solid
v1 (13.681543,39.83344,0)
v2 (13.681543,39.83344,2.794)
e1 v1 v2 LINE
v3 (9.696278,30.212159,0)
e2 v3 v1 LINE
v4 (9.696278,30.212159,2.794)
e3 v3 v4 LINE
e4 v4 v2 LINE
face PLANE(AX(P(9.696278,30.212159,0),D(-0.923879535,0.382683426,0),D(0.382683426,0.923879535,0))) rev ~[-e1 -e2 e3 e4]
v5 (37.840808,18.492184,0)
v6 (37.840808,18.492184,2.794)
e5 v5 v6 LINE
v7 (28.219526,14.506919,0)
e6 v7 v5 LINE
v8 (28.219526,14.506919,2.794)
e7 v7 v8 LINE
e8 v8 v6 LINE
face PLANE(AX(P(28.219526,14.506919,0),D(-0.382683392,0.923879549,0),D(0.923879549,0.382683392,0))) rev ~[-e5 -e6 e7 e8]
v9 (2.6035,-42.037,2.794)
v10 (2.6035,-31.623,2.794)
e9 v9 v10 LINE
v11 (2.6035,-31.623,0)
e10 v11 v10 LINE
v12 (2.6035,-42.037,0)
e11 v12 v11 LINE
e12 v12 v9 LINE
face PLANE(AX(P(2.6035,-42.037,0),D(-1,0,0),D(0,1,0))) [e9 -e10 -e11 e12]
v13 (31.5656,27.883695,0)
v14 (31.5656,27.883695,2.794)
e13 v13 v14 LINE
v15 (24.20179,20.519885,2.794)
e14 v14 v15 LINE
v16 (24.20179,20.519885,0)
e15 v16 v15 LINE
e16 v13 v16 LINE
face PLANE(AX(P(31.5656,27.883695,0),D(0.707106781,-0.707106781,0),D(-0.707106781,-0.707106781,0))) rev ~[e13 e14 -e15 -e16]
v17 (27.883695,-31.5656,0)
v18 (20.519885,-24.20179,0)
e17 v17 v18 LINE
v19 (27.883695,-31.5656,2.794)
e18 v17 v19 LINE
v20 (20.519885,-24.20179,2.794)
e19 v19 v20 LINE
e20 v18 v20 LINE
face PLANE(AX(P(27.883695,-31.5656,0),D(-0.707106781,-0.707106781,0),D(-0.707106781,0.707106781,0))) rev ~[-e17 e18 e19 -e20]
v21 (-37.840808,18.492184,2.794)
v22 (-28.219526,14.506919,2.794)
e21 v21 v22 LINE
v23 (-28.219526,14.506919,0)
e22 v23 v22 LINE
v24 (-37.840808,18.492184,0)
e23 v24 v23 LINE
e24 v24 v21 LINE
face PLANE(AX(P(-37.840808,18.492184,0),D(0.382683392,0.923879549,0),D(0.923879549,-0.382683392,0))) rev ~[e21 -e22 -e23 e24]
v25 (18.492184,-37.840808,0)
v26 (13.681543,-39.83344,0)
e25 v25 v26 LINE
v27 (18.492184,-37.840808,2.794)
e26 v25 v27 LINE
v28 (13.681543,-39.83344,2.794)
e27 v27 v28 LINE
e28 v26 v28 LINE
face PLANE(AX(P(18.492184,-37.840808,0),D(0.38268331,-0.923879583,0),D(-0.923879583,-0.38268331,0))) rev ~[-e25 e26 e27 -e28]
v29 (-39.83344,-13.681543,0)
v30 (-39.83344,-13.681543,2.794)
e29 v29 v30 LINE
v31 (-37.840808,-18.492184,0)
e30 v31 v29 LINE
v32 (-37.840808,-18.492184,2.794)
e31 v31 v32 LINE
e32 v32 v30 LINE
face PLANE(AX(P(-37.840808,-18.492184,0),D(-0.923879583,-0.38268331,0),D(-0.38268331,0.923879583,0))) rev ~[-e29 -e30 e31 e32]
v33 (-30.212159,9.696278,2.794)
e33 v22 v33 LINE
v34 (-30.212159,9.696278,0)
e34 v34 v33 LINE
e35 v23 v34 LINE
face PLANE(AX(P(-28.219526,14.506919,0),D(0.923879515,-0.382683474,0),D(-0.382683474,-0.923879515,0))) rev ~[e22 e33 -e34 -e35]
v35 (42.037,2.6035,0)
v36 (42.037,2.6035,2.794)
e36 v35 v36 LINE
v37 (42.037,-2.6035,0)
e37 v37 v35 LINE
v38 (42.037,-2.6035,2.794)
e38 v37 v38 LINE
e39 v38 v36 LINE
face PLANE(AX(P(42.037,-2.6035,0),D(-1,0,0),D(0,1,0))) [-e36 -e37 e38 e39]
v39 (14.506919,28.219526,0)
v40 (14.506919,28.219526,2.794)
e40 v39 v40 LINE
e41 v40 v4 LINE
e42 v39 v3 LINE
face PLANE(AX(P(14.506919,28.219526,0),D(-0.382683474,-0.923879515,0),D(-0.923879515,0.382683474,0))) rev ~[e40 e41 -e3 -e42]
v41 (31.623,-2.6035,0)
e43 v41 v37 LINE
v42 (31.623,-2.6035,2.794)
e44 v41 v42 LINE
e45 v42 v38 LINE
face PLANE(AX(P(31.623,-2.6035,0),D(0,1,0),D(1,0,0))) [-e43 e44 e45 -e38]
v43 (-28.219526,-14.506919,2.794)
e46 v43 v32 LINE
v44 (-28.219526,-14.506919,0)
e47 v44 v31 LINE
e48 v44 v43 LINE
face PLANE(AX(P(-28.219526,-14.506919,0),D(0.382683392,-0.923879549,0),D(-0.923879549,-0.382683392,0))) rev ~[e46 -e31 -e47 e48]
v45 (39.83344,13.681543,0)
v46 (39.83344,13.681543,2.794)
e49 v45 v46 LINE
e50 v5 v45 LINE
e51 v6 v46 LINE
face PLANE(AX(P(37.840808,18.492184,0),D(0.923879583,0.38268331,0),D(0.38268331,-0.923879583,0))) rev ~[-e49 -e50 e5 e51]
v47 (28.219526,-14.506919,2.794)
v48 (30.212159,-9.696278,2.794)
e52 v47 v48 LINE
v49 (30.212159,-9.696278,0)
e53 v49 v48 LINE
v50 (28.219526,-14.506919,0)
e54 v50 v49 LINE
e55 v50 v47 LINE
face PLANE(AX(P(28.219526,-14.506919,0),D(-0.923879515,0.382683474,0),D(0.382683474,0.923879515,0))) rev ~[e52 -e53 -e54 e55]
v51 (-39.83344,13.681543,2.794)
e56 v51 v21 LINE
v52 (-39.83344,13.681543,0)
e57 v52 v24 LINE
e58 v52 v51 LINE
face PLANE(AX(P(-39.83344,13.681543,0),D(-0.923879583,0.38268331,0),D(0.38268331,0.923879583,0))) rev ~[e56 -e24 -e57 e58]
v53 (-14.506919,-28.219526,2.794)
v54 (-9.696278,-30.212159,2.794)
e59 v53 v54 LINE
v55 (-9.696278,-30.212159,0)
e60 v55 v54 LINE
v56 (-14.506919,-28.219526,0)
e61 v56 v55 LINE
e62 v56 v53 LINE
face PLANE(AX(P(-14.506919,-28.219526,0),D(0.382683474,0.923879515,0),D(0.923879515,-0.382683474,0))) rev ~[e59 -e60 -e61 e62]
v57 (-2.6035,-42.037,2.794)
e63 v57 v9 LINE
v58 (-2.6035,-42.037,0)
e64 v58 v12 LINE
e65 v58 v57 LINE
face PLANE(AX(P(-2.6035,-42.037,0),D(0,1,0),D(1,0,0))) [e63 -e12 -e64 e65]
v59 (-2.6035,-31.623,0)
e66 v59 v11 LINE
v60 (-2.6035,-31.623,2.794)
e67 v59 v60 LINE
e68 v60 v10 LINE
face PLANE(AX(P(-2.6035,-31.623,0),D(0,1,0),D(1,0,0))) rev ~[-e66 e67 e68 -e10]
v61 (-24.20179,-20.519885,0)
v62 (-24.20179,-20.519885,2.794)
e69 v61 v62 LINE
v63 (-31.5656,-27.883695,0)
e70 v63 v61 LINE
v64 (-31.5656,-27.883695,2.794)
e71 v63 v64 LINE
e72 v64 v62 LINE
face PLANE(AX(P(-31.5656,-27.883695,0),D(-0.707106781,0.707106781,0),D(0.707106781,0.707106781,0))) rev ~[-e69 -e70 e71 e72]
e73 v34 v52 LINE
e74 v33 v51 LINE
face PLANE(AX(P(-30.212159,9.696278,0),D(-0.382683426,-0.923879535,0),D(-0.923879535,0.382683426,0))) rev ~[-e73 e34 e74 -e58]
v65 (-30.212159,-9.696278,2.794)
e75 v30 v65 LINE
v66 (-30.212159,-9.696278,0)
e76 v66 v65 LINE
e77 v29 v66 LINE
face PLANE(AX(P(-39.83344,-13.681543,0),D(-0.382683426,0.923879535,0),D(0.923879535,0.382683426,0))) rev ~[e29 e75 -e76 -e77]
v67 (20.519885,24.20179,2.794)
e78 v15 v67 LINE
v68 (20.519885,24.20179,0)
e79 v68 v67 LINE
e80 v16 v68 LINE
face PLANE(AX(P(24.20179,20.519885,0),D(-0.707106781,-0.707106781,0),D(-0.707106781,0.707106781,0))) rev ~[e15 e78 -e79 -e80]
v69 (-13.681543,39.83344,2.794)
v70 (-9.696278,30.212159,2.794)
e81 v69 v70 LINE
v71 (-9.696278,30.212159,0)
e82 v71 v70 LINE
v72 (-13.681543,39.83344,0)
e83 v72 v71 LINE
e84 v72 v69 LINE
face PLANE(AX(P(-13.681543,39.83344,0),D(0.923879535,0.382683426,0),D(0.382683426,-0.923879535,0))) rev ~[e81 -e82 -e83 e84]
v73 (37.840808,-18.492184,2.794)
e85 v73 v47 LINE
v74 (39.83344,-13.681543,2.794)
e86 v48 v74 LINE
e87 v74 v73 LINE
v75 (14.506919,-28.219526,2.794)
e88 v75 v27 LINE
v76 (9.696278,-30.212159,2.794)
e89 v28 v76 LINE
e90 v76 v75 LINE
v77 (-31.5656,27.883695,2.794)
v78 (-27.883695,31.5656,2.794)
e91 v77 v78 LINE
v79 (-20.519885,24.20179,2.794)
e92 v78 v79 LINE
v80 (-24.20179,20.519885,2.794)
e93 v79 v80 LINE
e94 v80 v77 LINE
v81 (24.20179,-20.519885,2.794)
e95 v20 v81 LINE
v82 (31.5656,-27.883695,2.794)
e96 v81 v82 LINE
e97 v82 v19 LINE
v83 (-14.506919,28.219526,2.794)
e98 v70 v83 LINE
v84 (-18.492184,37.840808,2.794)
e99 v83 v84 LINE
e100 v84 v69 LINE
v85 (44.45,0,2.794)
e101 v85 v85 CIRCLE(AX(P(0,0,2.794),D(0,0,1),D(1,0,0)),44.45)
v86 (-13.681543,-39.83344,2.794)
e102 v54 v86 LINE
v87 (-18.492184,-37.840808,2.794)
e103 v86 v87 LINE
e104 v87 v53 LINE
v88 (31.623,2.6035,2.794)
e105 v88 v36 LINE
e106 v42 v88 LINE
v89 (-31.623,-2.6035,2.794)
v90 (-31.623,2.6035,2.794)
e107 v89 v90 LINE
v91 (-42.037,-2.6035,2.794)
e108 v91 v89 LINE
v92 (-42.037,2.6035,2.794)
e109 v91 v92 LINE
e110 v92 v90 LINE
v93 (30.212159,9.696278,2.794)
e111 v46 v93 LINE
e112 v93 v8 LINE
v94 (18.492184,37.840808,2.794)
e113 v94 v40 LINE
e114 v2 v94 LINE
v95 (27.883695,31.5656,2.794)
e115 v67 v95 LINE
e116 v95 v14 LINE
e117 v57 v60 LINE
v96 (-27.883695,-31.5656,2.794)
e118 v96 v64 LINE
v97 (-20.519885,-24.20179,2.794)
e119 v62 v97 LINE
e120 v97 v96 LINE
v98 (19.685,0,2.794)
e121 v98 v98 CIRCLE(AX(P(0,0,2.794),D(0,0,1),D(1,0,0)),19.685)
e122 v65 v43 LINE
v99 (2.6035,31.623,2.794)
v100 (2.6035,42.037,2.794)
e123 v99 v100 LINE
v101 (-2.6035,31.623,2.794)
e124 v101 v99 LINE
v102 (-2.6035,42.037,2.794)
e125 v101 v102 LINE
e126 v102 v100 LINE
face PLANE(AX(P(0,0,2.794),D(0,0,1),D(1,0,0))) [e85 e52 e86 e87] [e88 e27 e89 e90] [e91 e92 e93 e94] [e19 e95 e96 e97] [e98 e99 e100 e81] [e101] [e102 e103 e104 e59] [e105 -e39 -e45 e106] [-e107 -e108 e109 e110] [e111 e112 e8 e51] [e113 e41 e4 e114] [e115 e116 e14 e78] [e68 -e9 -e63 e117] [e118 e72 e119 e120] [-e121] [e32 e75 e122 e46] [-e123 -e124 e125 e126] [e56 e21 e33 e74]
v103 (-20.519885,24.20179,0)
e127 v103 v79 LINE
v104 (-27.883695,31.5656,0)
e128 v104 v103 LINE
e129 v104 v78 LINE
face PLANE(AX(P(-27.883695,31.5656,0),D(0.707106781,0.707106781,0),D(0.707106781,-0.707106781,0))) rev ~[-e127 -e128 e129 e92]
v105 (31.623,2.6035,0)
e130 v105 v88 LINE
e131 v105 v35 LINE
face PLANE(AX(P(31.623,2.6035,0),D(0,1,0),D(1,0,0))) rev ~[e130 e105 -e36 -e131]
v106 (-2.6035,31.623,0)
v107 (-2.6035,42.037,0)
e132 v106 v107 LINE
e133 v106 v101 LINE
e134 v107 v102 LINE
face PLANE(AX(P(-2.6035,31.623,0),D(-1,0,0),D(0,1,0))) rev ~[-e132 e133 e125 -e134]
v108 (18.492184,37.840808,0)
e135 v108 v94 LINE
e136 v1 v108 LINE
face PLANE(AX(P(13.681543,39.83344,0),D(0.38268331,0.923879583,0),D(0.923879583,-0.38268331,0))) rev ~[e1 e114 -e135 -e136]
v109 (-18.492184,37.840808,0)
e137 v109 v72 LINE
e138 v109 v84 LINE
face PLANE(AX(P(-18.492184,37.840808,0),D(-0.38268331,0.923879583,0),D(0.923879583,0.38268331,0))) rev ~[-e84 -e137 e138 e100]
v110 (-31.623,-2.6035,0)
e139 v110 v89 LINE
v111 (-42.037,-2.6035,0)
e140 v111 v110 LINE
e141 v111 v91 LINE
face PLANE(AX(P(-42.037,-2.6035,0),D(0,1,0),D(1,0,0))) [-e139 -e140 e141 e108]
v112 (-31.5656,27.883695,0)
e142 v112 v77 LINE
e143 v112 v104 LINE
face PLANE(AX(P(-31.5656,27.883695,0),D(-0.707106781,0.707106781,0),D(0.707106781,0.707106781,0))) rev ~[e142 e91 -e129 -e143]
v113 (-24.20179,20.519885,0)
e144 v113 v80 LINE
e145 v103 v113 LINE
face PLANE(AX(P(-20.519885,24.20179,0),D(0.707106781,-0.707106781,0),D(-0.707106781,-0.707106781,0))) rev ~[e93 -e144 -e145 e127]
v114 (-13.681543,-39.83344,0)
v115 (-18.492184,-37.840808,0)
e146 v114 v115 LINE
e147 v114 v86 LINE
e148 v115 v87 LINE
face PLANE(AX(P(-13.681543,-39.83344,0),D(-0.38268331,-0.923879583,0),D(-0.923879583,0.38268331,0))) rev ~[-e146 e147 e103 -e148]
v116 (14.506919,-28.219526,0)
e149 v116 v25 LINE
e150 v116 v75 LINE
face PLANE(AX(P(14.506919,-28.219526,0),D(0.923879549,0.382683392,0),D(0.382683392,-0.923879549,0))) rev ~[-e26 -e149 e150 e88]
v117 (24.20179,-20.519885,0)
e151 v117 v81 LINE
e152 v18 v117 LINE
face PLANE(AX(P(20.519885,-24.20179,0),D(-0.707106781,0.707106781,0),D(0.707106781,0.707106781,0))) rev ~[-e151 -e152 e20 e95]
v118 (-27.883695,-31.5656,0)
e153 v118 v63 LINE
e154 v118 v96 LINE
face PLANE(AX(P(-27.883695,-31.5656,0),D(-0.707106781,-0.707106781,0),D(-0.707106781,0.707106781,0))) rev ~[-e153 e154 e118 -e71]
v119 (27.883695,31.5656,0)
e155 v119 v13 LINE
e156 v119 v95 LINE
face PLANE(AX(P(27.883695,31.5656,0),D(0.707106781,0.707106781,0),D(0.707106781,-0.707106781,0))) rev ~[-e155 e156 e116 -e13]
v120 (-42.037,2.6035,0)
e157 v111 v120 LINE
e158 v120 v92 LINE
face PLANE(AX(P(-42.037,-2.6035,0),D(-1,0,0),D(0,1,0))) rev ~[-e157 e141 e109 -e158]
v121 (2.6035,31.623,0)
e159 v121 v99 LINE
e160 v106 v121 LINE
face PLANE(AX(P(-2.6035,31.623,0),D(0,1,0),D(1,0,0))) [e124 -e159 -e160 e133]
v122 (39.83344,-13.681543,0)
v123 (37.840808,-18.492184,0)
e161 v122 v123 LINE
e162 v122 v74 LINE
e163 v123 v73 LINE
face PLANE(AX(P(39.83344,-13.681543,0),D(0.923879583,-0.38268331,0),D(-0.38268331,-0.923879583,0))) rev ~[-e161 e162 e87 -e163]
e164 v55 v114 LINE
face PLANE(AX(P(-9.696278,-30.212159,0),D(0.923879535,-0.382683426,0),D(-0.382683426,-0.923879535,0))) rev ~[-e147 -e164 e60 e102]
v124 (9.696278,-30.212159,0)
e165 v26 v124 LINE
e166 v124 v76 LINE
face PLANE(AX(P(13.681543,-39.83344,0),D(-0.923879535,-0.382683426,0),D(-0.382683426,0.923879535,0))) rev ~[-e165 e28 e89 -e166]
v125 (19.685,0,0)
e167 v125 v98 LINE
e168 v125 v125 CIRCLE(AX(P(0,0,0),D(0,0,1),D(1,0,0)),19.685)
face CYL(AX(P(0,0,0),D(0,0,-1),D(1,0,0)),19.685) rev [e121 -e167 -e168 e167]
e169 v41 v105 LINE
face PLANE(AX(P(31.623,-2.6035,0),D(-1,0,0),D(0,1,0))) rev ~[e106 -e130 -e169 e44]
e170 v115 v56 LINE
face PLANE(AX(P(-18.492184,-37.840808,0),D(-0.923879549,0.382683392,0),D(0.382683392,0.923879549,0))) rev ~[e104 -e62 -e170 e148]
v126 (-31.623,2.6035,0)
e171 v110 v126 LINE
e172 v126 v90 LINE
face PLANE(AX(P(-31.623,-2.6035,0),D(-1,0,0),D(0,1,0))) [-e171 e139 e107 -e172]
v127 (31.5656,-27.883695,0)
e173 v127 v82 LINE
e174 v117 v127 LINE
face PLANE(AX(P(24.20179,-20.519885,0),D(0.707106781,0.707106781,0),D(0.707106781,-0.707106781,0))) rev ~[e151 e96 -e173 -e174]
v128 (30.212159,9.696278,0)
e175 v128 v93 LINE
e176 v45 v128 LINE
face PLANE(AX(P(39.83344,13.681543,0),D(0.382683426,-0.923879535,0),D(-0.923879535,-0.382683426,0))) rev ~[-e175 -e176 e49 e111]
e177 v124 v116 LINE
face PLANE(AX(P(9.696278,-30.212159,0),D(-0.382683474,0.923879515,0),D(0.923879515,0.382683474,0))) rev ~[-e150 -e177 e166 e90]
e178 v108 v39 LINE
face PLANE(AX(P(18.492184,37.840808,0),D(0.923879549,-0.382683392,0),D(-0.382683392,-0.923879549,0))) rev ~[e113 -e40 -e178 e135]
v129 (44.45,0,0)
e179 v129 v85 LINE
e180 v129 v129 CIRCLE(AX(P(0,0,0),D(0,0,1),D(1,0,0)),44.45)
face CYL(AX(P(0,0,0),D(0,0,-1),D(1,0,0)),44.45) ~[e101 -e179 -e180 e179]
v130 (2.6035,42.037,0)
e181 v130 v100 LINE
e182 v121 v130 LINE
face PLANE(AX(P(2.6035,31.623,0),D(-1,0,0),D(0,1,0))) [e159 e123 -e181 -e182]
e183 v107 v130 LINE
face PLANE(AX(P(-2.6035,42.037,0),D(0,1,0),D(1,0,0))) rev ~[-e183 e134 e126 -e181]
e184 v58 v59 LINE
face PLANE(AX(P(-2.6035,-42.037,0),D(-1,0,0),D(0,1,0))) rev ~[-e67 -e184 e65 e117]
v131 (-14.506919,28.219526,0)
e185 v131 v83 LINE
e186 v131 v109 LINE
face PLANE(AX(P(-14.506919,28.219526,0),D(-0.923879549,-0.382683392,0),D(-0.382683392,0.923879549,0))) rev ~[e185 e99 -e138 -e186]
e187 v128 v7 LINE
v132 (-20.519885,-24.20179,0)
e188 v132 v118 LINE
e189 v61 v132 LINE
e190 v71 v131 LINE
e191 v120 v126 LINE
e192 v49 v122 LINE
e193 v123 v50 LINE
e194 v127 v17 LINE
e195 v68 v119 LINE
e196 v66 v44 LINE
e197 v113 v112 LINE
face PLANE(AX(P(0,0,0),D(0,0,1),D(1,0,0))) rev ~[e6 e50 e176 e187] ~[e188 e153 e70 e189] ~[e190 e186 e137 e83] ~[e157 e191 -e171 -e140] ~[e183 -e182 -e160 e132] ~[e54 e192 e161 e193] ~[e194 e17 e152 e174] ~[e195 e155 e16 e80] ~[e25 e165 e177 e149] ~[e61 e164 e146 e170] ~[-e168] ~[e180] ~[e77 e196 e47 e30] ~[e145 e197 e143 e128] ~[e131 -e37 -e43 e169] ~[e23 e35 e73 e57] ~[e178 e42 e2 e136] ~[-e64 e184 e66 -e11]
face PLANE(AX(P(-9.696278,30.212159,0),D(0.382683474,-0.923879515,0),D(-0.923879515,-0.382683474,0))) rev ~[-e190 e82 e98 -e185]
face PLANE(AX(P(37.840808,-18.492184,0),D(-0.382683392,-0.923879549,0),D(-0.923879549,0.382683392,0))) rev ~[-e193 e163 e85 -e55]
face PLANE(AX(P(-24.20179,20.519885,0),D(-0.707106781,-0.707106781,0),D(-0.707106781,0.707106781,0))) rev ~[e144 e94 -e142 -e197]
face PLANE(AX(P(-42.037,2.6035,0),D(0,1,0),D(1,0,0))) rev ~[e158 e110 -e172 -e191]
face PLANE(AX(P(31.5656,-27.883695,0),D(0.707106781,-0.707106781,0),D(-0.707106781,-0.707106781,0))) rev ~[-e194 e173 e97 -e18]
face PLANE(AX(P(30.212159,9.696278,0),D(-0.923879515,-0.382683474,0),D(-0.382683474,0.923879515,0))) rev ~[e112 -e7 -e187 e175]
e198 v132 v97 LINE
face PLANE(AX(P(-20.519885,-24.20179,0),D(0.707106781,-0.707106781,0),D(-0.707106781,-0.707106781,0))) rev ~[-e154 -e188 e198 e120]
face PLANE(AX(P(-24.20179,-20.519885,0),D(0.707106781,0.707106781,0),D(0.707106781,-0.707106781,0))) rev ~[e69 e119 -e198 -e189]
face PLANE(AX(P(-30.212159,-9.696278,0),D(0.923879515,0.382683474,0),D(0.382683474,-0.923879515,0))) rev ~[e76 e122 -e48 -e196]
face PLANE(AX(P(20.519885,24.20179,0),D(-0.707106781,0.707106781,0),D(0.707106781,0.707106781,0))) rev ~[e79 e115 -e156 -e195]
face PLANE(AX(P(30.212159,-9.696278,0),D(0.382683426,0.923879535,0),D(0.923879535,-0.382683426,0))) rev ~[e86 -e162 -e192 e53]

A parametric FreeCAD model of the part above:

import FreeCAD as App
import Part
import Sketcher
from FreeCAD import Vector
Q = App.Units.Quantity


def add_polygon(sketch, points):
    """Adds a closed chain of lines whose ends are joined by coincident constraints."""
    first, n = sketch.GeometryCount, len(points)
    for a, b in zip(points, points[1:] + points[:1]):
        sketch.addGeometry(Part.LineSegment(App.Vector(*a, 0), App.Vector(*b, 0)), False)
    for i in range(n):
        sketch.addConstraint(Sketcher.Constraint("Coincident", first + i, 2, first + (i + 1) % n, 1))

doc = App.newDocument("Part")
body = doc.addObject("PartDesign::Body", "Body")

sketch1 = body.newObject("Sketcher::SketchObject", "Sketch")
sketch1.AttachmentSupport = (doc.getObject("XY_Plane"), [""])
sketch1.MapMode = "FlatFace"
sketch1.addGeometry(Part.Circle(Vector(0, 0, 0), Vector(0, 0, 1), 44.45), False)
add_polygon(sketch1, [(-31.5656, -27.883695), (-24.20179, -20.519885), (-20.519885, -24.20179), (-27.883695, -31.5656)])
add_polygon(sketch1, [(-18.492184, -37.840808), (-14.506919, -28.219526), (-9.696278, -30.212159), (-13.681543, -39.83344)])
add_polygon(sketch1, [(-39.83344, -13.681543), (-30.212159, -9.696278), (-28.219526, -14.506919), (-37.840808, -18.492184)])
add_polygon(sketch1, [(2.6035, -42.037), (-2.6035, -42.037), (-2.6035, -31.623), (2.6035, -31.623)])
add_polygon(sketch1, [(13.681543, -39.83344), (9.696278, -30.212159), (14.506919, -28.219526), (18.492184, -37.840808)])
add_polygon(sketch1, [(27.883695, -31.5656), (20.519885, -24.20179), (24.20179, -20.519885), (31.5656, -27.883695)])
sketch1.addGeometry(Part.Circle(Vector(0, 0, 0), Vector(0, 0, 1), 19.685), False)
add_polygon(sketch1, [(37.840808, -18.492184), (28.219526, -14.506919), (30.212159, -9.696278), (39.83344, -13.681543)])
add_polygon(sketch1, [(-31.623, -2.6035), (-42.037, -2.6035), (-42.037, 2.6035), (-31.623, 2.6035)])
add_polygon(sketch1, [(-37.840808, 18.492184), (-28.219526, 14.506919), (-30.212159, 9.696278), (-39.83344, 13.681543)])
add_polygon(sketch1, [(-27.883695, 31.5656), (-20.519885, 24.20179), (-24.20179, 20.519885), (-31.5656, 27.883695)])
add_polygon(sketch1, [(-13.681543, 39.83344), (-9.696278, 30.212159), (-14.506919, 28.219526), (-18.492184, 37.840808)])
add_polygon(sketch1, [(42.037, -2.6035), (31.623, -2.6035), (31.623, 2.6035), (42.037, 2.6035)])
add_polygon(sketch1, [(39.83344, 13.681543), (30.212159, 9.696278), (28.219526, 14.506919), (37.840808, 18.492184)])
add_polygon(sketch1, [(2.6035, 31.623), (-2.6035, 31.623), (-2.6035, 42.037), (2.6035, 42.037)])
add_polygon(sketch1, [(18.492184, 37.840808), (14.506919, 28.219526), (9.696278, 30.212159), (13.681543, 39.83344)])
add_polygon(sketch1, [(31.5656, 27.883695), (24.20179, 20.519885), (20.519885, 24.20179), (27.883695, 31.5656)])
sketch1.addConstraint([
    Sketcher.Constraint("Horizontal", 13),
    Sketcher.Constraint("Vertical", 14),
    Sketcher.Constraint("Horizontal", 15),
    Sketcher.Constraint("Vertical", 16),
    Sketcher.Constraint("Horizontal", 30),
    Sketcher.Constraint("Vertical", 31),
    Sketcher.Constraint("Horizontal", 32),
    Sketcher.Constraint("Vertical", 33),
    Sketcher.Constraint("Horizontal", 46),
    Sketcher.Constraint("Vertical", 47),
    Sketcher.Constraint("Horizontal", 48),
    Sketcher.Constraint("Vertical", 49),
    Sketcher.Constraint("Horizontal", 54),
    Sketcher.Constraint("Vertical", 55),
    Sketcher.Constraint("Horizontal", 56),
    Sketcher.Constraint("Vertical", 57),
    Sketcher.Constraint("Coincident", 0, 3, -1, 1),
    Sketcher.Constraint("Coincident", 25, 3, -1, 1),
    Sketcher.Constraint("Symmetric", 26, 2, 34, 2, -1, 1),
    Sketcher.Constraint("Symmetric", 27, 2, 35, 2, -1, 1),
    Sketcher.Constraint("Symmetric", 28, 2, 36, 2, -1, 1),
    Sketcher.Constraint("Symmetric", 29, 2, 37, 2, -1, 1),
    Sketcher.Constraint("Symmetric", 21, 2, 38, 2, -1, 1),
    Sketcher.Constraint("Symmetric", 22, 2, 39, 2, -1, 1),
    Sketcher.Constraint("Symmetric", 23, 2, 40, 2, -1, 1),
    Sketcher.Constraint("Symmetric", 24, 2, 41, 2, -1, 1),
    Sketcher.Constraint("Symmetric", 17, 2, 42, 2, -1, 1),
    Sketcher.Constraint("Symmetric", 18, 2, 43, 2, -1, 1),
    Sketcher.Constraint("Symmetric", 19, 2, 44, 2, -1, 1),
    Sketcher.Constraint("Symmetric", 20, 2, 45, 2, -1, 1),
    Sketcher.Constraint("Symmetric", 32, 2, 46, 2, -1, 1),
    Sketcher.Constraint("Symmetric", 30, 2, 48, 2, -1, 1),
    Sketcher.Constraint("Symmetric", 9, 2, 50, 2, -1, 1),
    Sketcher.Constraint("Symmetric", 10, 2, 51, 2, -1, 1),
    Sketcher.Constraint("Symmetric", 11, 2, 52, 2, -1, 1),
    Sketcher.Constraint("Symmetric", 12, 2, 53, 2, -1, 1),
    Sketcher.Constraint("Symmetric", 15, 2, 54, 2, -1, 1),
    Sketcher.Constraint("Symmetric", 13, 2, 56, 2, -1, 1),
    Sketcher.Constraint("Symmetric", 5, 2, 58, 2, -1, 1),
    Sketcher.Constraint("Symmetric", 6, 2, 59, 2, -1, 1),
    Sketcher.Constraint("Symmetric", 7, 2, 60, 2, -1, 1),
    Sketcher.Constraint("Symmetric", 8, 2, 61, 2, -1, 1),
    Sketcher.Constraint("Symmetric", 1, 2, 62, 2, -1, 1),
    Sketcher.Constraint("Symmetric", 2, 2, 63, 2, -1, 1),
    Sketcher.Constraint("Symmetric", 3, 2, 64, 2, -1, 1),
    Sketcher.Constraint("Symmetric", 4, 2, 65, 2, -1, 1),
    Sketcher.Constraint("Symmetric", 6, 2, 17, 2, -2),
    Sketcher.Constraint("Symmetric", 5, 2, 18, 2, -2),
    Sketcher.Constraint("Symmetric", 8, 2, 19, 2, -2),
    Sketcher.Constraint("Symmetric", 7, 2, 20, 2, -2),
    Sketcher.Constraint("Symmetric", 2, 2, 21, 2, -2),
    Sketcher.Constraint("Symmetric", 1, 2, 22, 2, -2),
    Sketcher.Constraint("Symmetric", 4, 2, 23, 2, -2),
    Sketcher.Constraint("Symmetric", 3, 2, 24, 2, -2),
    Sketcher.Constraint("Symmetric", 10, 2, 26, 2, -2),
    Sketcher.Constraint("Symmetric", 9, 2, 27, 2, -2),
    Sketcher.Constraint("Symmetric", 12, 2, 28, 2, -2),
    Sketcher.Constraint("Symmetric", 11, 2, 29, 2, -2),
    Sketcher.Constraint("Perpendicular", 1, 2),
    Sketcher.Constraint("Perpendicular", 2, 3),
    Sketcher.Constraint("Perpendicular", 3, 4),
    Sketcher.Constraint("Perpendicular", 5, 6),
    Sketcher.Constraint("Perpendicular", 6, 7),
    Sketcher.Constraint("Perpendicular", 7, 8),
    Sketcher.Constraint("Perpendicular", 9, 10),
    Sketcher.Constraint("Perpendicular", 10, 11),
    Sketcher.Constraint("Perpendicular", 11, 12),
    Sketcher.Constraint("Parallel", 12, 17),
    Sketcher.Constraint("Parallel", 4, 21),
    Sketcher.Constraint("Horizontal", 33, 2, 46, 2),
    Sketcher.Constraint("Vertical", 14, 2, 54, 2),
    Sketcher.Constraint("Equal", 48, 14),
    Sketcher.Constraint("Equal", 56, 31),
    Sketcher.Constraint("Equal", 3, 5),
    Sketcher.Constraint("Equal", 4, 6),
    Sketcher.Constraint("Equal", 7, 9),
    Sketcher.Constraint("Equal", 8, 10),
    Sketcher.Constraint("Diameter", 0, Q("3.5 in")),
    Sketcher.Constraint("Diameter", 25, Q("1.55 in")),
    Sketcher.Constraint("DistanceX", 30, 2, 30, 1, Q("0.41 in")),
    Sketcher.Constraint("Angle", 5, Q("67.500002 deg")),
    Sketcher.Constraint("Distance", 1, Q("0.41 in")),
    Sketcher.Constraint("DistanceX", 13, 2, 13, 1, Q("0.205 in")),
    Sketcher.Constraint("Distance", 2, Q("0.205 in")),
    Sketcher.Constraint("DistanceY", 13, 2, -1, 1, Q("1.655 in")),
    Sketcher.Constraint("DistanceX", 30, 2, -1, 1, Q("1.655 in")),
    Sketcher.Constraint("DistanceY", 3, 2, -1, 1, 31.5656),
    Sketcher.Constraint("DistanceX", 4, 2, -1, 1, 31.5656),
    Sketcher.Constraint("DistanceX", 5, 2, -1, 1, 14.506919),
    Sketcher.Constraint("DistanceY", 6, 2, -1, 1, 30.212159),
    Sketcher.Constraint("DistanceX", 9, 2, -1, 1, 30.212159),
    Sketcher.Constraint("DistanceY", 10, 2, -1, 1, 14.506919),
])
pad1 = body.newObject("PartDesign::Pad", "Pad")
pad1.Profile = sketch1
pad1.Length = Q("0.11 in")

doc.recompute()
